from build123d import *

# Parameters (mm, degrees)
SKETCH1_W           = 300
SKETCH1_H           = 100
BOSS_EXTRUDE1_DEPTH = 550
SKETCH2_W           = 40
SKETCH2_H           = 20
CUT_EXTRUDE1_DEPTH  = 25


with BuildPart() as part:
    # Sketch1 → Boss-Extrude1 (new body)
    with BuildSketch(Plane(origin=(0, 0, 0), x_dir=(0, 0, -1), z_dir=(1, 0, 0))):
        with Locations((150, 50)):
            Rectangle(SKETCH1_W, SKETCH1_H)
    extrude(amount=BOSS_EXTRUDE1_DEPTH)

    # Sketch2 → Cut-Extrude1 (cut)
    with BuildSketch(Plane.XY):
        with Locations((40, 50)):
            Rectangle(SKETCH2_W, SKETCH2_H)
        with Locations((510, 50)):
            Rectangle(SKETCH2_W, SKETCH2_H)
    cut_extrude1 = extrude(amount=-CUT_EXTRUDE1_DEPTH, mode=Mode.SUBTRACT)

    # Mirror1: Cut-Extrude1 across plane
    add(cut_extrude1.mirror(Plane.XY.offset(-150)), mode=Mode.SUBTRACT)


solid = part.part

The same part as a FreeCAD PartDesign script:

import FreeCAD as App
import Part
import Sketcher
from FreeCAD import Vector

doc = App.newDocument("Part")
body = doc.addObject("PartDesign::Body", "Body")

# Sketch on YZ plane
sketch1 = body.newObject("Sketcher::SketchObject", "Sketch")
sketch1.AttachmentSupport = (doc.getObject("YZ_Plane"), [""])
sketch1.MapMode = "FlatFace"
sketch1.addGeometry([
    Part.LineSegment(Vector(100, 0, 0), Vector(0, 0, 0)),
    Part.LineSegment(Vector(0, 0, 0), Vector(0, -300, 0)),
    Part.LineSegment(Vector(0, -300, 0), Vector(100, -300, 0)),
    Part.LineSegment(Vector(100, -300, 0), Vector(100, 0, 0)),
], False)
sketch1.addConstraint([
    Sketcher.Constraint("Coincident", 0, 2, 1, 1),
    Sketcher.Constraint("Coincident", 1, 2, 2, 1),
    Sketcher.Constraint("Coincident", 2, 2, 3, 1),
    Sketcher.Constraint("Coincident", 3, 2, 0, 1),
    Sketcher.Constraint("Horizontal", 0),
    Sketcher.Constraint("Vertical", 1),
    Sketcher.Constraint("Horizontal", 2),
    Sketcher.Constraint("Vertical", 3),
    Sketcher.Constraint("Coincident", 0, 2, -1, 1),
    Sketcher.Constraint("DistanceX", 0, 2, 0, 1, 100.0),
    Sketcher.Constraint("DistanceY", 1, 2, 1, 1, 300.0),
])
pad1 = body.newObject("PartDesign::Pad", "Pad")
pad1.Profile = sketch1
pad1.Length = 550

# Sketch on XY plane
sketch2 = body.newObject("Sketcher::SketchObject", "Sketch001")
sketch2.AttachmentSupport = (doc.getObject("XY_Plane"), [""])
sketch2.MapMode = "FlatFace"
sketch2.addGeometry([
    Part.LineSegment(Vector(20, 60, 0), Vector(20, 40, 0)),  # 0
    Part.LineSegment(Vector(20, 40, 0), Vector(60, 40, 0)),  # 1
    Part.LineSegment(Vector(60, 40, 0), Vector(60, 60, 0)),  # 2
    Part.LineSegment(Vector(60, 60, 0), Vector(20, 60, 0)),  # 3
    Part.LineSegment(Vector(490, 60, 0), Vector(490, 40, 0)),  # 4
    Part.LineSegment(Vector(490, 40, 0), Vector(530, 40, 0)),  # 5
    Part.LineSegment(Vector(530, 40, 0), Vector(530, 60, 0)),  # 6
    Part.LineSegment(Vector(530, 60, 0), Vector(490, 60, 0)),  # 7
], False)
sketch2.addConstraint([
    Sketcher.Constraint("Coincident", 0, 2, 1, 1),
    Sketcher.Constraint("Coincident", 1, 2, 2, 1),
    Sketcher.Constraint("Coincident", 2, 2, 3, 1),
    Sketcher.Constraint("Coincident", 3, 2, 0, 1),
    Sketcher.Constraint("Coincident", 4, 2, 5, 1),
    Sketcher.Constraint("Coincident", 5, 2, 6, 1),
    Sketcher.Constraint("Coincident", 6, 2, 7, 1),
    Sketcher.Constraint("Coincident", 7, 2, 4, 1),
    Sketcher.Constraint("Vertical", 0),
    Sketcher.Constraint("Horizontal", 1),
    Sketcher.Constraint("Vertical", 2),
    Sketcher.Constraint("Horizontal", 3),
    Sketcher.Constraint("Vertical", 4),
    Sketcher.Constraint("Horizontal", 5),
    Sketcher.Constraint("Vertical", 6),
    Sketcher.Constraint("Horizontal", 7),
    Sketcher.Constraint("Horizontal", 1, 2, 4, 2),
    Sketcher.Constraint("Horizontal", 3, 2, 6, 2),
    Sketcher.Constraint("Equal", 3, 5),
    Sketcher.Constraint("DistanceX", 1, 1, 1, 2, 40.0),
    Sketcher.Constraint("DistanceY", 0, 2, 0, 1, 20.0),
    Sketcher.Constraint("DistanceX", -1, 1, 0, 2, 20.0),
    Sketcher.Constraint("DistanceY", -1, 1, 0, 2, 40.0),
    Sketcher.Constraint("DistanceX", -1, 1, 4, 2, 490.0),
])
pocket1 = body.newObject("PartDesign::Pocket", "Pocket")
pocket1.Profile = sketch2
pocket1.Length = 25
doc.recompute()

datumplane = body.newObject("PartDesign::Plane", "DatumPlane")
datumplane.AttachmentSupport = (doc.getObject("XY_Plane"), [""])
datumplane.MapMode = "FlatFace"
datumplane.AttachmentOffset = App.Placement(Vector(0, 0, -150), App.Rotation())
mirrored = body.newObject("PartDesign::Mirrored", "Mirrored")
mirrored.Originals = [pocket1]
mirrored.MirrorPlane = (datumplane, [""])
body.Tip = mirrored

doc.recompute()
